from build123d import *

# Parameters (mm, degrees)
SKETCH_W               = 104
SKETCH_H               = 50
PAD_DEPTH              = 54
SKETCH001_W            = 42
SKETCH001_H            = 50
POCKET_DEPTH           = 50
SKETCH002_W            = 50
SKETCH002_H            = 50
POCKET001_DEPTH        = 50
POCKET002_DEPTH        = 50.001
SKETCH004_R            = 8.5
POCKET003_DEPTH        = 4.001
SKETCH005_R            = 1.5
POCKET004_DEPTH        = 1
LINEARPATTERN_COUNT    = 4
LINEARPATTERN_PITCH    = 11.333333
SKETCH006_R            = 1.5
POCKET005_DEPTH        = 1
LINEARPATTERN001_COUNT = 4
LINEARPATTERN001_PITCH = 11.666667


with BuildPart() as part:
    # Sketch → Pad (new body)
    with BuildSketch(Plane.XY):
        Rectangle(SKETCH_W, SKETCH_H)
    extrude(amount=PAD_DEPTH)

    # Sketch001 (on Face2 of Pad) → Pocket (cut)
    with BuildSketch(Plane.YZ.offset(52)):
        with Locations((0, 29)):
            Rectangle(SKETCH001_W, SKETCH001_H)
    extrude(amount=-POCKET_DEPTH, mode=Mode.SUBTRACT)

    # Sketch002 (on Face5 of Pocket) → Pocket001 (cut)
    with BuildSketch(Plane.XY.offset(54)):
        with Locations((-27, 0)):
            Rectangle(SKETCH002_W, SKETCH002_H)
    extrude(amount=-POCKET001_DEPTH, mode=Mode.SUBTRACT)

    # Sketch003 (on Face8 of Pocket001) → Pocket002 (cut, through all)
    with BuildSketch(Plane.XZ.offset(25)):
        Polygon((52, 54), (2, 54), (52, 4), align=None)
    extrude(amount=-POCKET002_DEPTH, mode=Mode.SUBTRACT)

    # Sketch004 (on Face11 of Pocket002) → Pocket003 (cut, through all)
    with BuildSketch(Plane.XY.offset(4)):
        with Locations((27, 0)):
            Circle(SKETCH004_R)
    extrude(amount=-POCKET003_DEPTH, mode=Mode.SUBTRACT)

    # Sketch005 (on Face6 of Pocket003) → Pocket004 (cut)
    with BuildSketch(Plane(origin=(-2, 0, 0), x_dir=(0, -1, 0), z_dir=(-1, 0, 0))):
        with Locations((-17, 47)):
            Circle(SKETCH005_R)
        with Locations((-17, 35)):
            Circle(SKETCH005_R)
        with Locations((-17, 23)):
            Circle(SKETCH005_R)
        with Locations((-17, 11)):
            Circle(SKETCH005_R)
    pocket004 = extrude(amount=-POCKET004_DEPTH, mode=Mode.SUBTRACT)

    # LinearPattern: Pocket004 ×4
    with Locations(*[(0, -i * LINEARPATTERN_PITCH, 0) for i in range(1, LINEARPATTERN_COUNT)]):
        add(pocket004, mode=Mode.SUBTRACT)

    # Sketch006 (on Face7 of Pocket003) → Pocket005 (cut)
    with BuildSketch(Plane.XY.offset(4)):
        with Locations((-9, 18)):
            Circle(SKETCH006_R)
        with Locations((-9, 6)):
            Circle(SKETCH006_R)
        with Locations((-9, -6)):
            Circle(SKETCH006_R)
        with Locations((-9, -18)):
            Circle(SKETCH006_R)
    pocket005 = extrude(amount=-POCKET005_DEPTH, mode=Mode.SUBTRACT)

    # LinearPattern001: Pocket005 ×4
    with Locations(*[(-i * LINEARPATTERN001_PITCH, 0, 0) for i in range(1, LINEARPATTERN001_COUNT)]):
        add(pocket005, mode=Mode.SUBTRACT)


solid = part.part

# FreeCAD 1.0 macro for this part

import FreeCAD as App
import Part
import Sketcher

V = App.Vector
Q = App.Units.Quantity

doc = App.newDocument("Part")
body = doc.addObject("PartDesign::Body", "Body")

# Sketch on XY plane
sketch1 = body.newObject("Sketcher::SketchObject", "Sketch")
sketch1.AttachmentSupport = (doc.getObject("XY_Plane"), [""])
sketch1.MapMode = "FlatFace"
sketch1.addGeometry(Part.LineSegment(V(-52, 25, 0), V(-52, -25, 0)), False)
sketch1.addGeometry(Part.LineSegment(V(-52, -25, 0), V(52, -25, 0)), False)
sketch1.addGeometry(Part.LineSegment(V(52, -25, 0), V(52, 25, 0)), False)
sketch1.addGeometry(Part.LineSegment(V(52, 25, 0), V(-52, 25, 0)), False)
sketch1.addConstraint(Sketcher.Constraint("Coincident", 0, 2, 1, 1))
sketch1.addConstraint(Sketcher.Constraint("Coincident", 1, 2, 2, 1))
sketch1.addConstraint(Sketcher.Constraint("Coincident", 2, 2, 3, 1))
sketch1.addConstraint(Sketcher.Constraint("Coincident", 3, 2, 0, 1))
sketch1.addConstraint(Sketcher.Constraint("Vertical", 0))
sketch1.addConstraint(Sketcher.Constraint("Horizontal", 1))
sketch1.addConstraint(Sketcher.Constraint("Vertical", 2))
sketch1.addConstraint(Sketcher.Constraint("Horizontal", 3))
sketch1.addConstraint(Sketcher.Constraint("Symmetric", 0, 2, 2, 2, -1, 1))
sketch1.addConstraint(Sketcher.Constraint("DistanceX", 1, 1, 1, 2, Q("104 mm")))
sketch1.addConstraint(Sketcher.Constraint("DistanceY", 0, 2, 0, 1, Q("50 mm")))
pad1 = body.newObject("PartDesign::Pad", "Pad")
pad1.Profile = sketch1
pad1.Length = 54

# Sketch on YZ plane
sketch2 = body.newObject("Sketcher::SketchObject", "Sketch001")
sketch2.AttachmentSupport = (doc.getObject("YZ_Plane"), [""])
sketch2.MapMode = "FlatFace"
sketch2.AttachmentOffset = App.Placement(V(0, 0, 52), App.Rotation())
sketch2.addGeometry(Part.LineSegment(V(-21, 54, 0), V(-21, 4, 0)), False)
sketch2.addGeometry(Part.LineSegment(V(-21, 4, 0), V(21, 4, 0)), False)
sketch2.addGeometry(Part.LineSegment(V(21, 4, 0), V(21, 54, 0)), False)
sketch2.addGeometry(Part.LineSegment(V(21, 54, 0), V(-21, 54, 0)), False)
sketch2.addConstraint(Sketcher.Constraint("Coincident", 0, 2, 1, 1))
sketch2.addConstraint(Sketcher.Constraint("Coincident", 1, 2, 2, 1))
sketch2.addConstraint(Sketcher.Constraint("Coincident", 2, 2, 3, 1))
sketch2.addConstraint(Sketcher.Constraint("Coincident", 3, 2, 0, 1))
sketch2.addConstraint(Sketcher.Constraint("Vertical", 0))
sketch2.addConstraint(Sketcher.Constraint("Horizontal", 1))
sketch2.addConstraint(Sketcher.Constraint("Vertical", 2))
sketch2.addConstraint(Sketcher.Constraint("Horizontal", 3))
sketch2.addConstraint(Sketcher.Constraint("DistanceX", 1, 1, 1, 2, Q("42 mm")))
sketch2.addConstraint(Sketcher.Constraint("DistanceY", 0, 2, 0, 1, Q("50 mm")))
sketch2.addConstraint(Sketcher.Constraint("DistanceX", 0, 2, -1, 1, Q("21 mm")))
sketch2.addConstraint(Sketcher.Constraint("DistanceY", -1, 1, 0, 2, Q("4 mm")))
pocket1 = body.newObject("PartDesign::Pocket", "Pocket")
pocket1.Profile = sketch2
pocket1.Length = 50

# Sketch on XY plane
sketch3 = body.newObject("Sketcher::SketchObject", "Sketch002")
sketch3.AttachmentSupport = (doc.getObject("XY_Plane"), [""])
sketch3.MapMode = "FlatFace"
sketch3.AttachmentOffset = App.Placement(V(0, 0, 54), App.Rotation())
sketch3.addGeometry(Part.LineSegment(V(-52, 25, 0), V(-52, -25, 0)), False)
sketch3.addGeometry(Part.LineSegment(V(-52, -25, 0), V(-2, -25, 0)), False)
sketch3.addGeometry(Part.LineSegment(V(-2, -25, 0), V(-2, 25, 0)), False)
sketch3.addGeometry(Part.LineSegment(V(-2, 25, 0), V(-52, 25, 0)), False)
sketch3.addConstraint(Sketcher.Constraint("Coincident", 0, 2, 1, 1))
sketch3.addConstraint(Sketcher.Constraint("Coincident", 1, 2, 2, 1))
sketch3.addConstraint(Sketcher.Constraint("Coincident", 2, 2, 3, 1))
sketch3.addConstraint(Sketcher.Constraint("Coincident", 3, 2, 0, 1))
sketch3.addConstraint(Sketcher.Constraint("Vertical", 0))
sketch3.addConstraint(Sketcher.Constraint("Horizontal", 1))
sketch3.addConstraint(Sketcher.Constraint("Vertical", 2))
sketch3.addConstraint(Sketcher.Constraint("Horizontal", 3))
sketch3.addConstraint(Sketcher.Constraint("Equal", 3, 0))
sketch3.addConstraint(Sketcher.Constraint("DistanceX", 1, 1, 1, 2, Q("50 mm")))
sketch3.addConstraint(Sketcher.Constraint("DistanceX", 0, 2, -1, 1, Q("52 mm")))
sketch3.addConstraint(Sketcher.Constraint("DistanceY", 0, 2, -1, 1, Q("25 mm")))
pocket2 = body.newObject("PartDesign::Pocket", "Pocket001")
pocket2.Profile = sketch3
pocket2.Length = 50

# Sketch on XZ plane
sketch4 = body.newObject("Sketcher::SketchObject", "Sketch003")
sketch4.AttachmentSupport = (doc.getObject("XZ_Plane"), [""])
sketch4.MapMode = "FlatFace"
sketch4.AttachmentOffset = App.Placement(V(0, 0, 25), App.Rotation())
sketch4.addGeometry(Part.LineSegment(V(52, 54, 0), V(2, 54, 0)), False)
sketch4.addGeometry(Part.LineSegment(V(2, 54, 0), V(52, 4, 0)), False)
sketch4.addGeometry(Part.LineSegment(V(52, 4, 0), V(52, 54, 0)), False)
sketch4.addConstraint(Sketcher.Constraint("Coincident", 0, 2, 1, 1))
sketch4.addConstraint(Sketcher.Constraint("Coincident", 1, 2, 2, 1))
sketch4.addConstraint(Sketcher.Constraint("Coincident", 2, 2, 0, 1))
sketch4.addConstraint(Sketcher.Constraint("Horizontal", 0))
sketch4.addConstraint(Sketcher.Constraint("Vertical", 2))
sketch4.addConstraint(Sketcher.Constraint("Equal", 0, 2))
sketch4.addConstraint(Sketcher.Constraint("DistanceX", 0, 2, 0, 1, Q("50 mm")))
sketch4.addConstraint(Sketcher.Constraint("DistanceX", -1, 1, 0, 2, Q("2 mm")))
sketch4.addConstraint(Sketcher.Constraint("DistanceY", -1, 1, 0, 2, Q("54 mm")))
pocket3 = body.newObject("PartDesign::Pocket", "Pocket002")
pocket3.Profile = sketch4
pocket3.Type = "ThroughAll"

# Sketch on XY plane
sketch5 = body.newObject("Sketcher::SketchObject", "Sketch004")
sketch5.AttachmentSupport = (doc.getObject("XY_Plane"), [""])
sketch5.MapMode = "FlatFace"
sketch5.AttachmentOffset = App.Placement(V(0, 0, 4), App.Rotation())
sketch5.addGeometry(Part.Circle(V(27, 0, 0), V(0, 0, 1), 8), False)
sketch5.addConstraint(Sketcher.Constraint("PointOnObject", 0, 3, -1))
sketch5.addConstraint(Sketcher.Constraint("Diameter", 0, Q("17 mm")))
sketch5.addConstraint(Sketcher.Constraint("DistanceX", -1, 1, 0, 3, Q("27 mm")))
pocket4 = body.newObject("PartDesign::Pocket", "Pocket003")
pocket4.Profile = sketch5
pocket4.Type = "ThroughAll"

# Sketch on YZ plane
sketch6 = body.newObject("Sketcher::SketchObject", "Sketch005")
sketch6.AttachmentSupport = (doc.getObject("YZ_Plane"), [""])
sketch6.MapMode = "FlatFace"
sketch6.AttachmentOffset = App.Placement(V(0, 0, -2), App.Rotation())
sketch6.addGeometry(Part.Circle(V(17, 47, 0), V(0, 0, 1), 1.5), False)
sketch6.addGeometry(Part.Circle(V(17, 35, 0), V(0, 0, 1), 1.5), False)
sketch6.addGeometry(Part.Circle(V(17, 23, 0), V(0, 0, 1), 1.5), False)
sketch6.addGeometry(Part.Circle(V(17, 11, 0), V(0, 0, 1), 1.5), False)
sketch6.addConstraint(Sketcher.Constraint("Equal", 0, 1))
sketch6.addConstraint(Sketcher.Constraint("Equal", 1, 2))
sketch6.addConstraint(Sketcher.Constraint("Equal", 2, 3))
sketch6.addConstraint(Sketcher.Constraint("Vertical", 0, 3, 1, 3))
sketch6.addConstraint(Sketcher.Constraint("Vertical", 1, 3, 2, 3))
sketch6.addConstraint(Sketcher.Constraint("Vertical", 2, 3, 3, 3))
sketch6.addConstraint(Sketcher.Constraint("Diameter", 0, Q("3 mm")))
sketch6.addConstraint(Sketcher.Constraint("DistanceX", -1, 1, 0, 3, Q("17 mm")))
sketch6.addConstraint(Sketcher.Constraint("DistanceY", -1, 1, 0, 3, Q("47 mm")))
sketch6.addConstraint(Sketcher.Constraint("DistanceY", -1, 1, 1, 3, Q("35 mm")))
sketch6.addConstraint(Sketcher.Constraint("DistanceY", -1, 1, 2, 3, Q("23 mm")))
sketch6.addConstraint(Sketcher.Constraint("DistanceY", -1, 1, 3, 3, Q("11 mm")))
pocket5 = body.newObject("PartDesign::Pocket", "Pocket004")
pocket5.Profile = sketch6
pocket5.Length = 1
pocket5.Reversed = True
doc.recompute()

linearpattern = body.newObject("PartDesign::LinearPattern", "LinearPattern")
linearpattern.Originals = [pocket5]
linearpattern.Direction = (doc.getObject("Y_Axis"), [""])
linearpattern.Mode = "offset"
linearpattern.Offset = 11.333333
linearpattern.Occurrences = 4
linearpattern.Reversed = True
body.Tip = linearpattern

# Sketch on XY plane
sketch7 = body.newObject("Sketcher::SketchObject", "Sketch006")
sketch7.AttachmentSupport = (doc.getObject("XY_Plane"), [""])
sketch7.MapMode = "FlatFace"
sketch7.AttachmentOffset = App.Placement(V(0, 0, 4), App.Rotation())
sketch7.addGeometry(Part.Circle(V(-9, 18, 0), V(0, 0, 1), 1.5), False)
sketch7.addGeometry(Part.Circle(V(-9, 6, 0), V(0, 0, 1), 1.5), False)
sketch7.addGeometry(Part.Circle(V(-9, -6, 0), V(0, 0, 1), 1.5), False)
sketch7.addGeometry(Part.Circle(V(-9, -18, 0), V(0, 0, 1), 1.5), False)
sketch7.addConstraint(Sketcher.Constraint("Equal", 0, 1))
sketch7.addConstraint(Sketcher.Constraint("Equal", 1, 2))
sketch7.addConstraint(Sketcher.Constraint("Equal", 2, 3))
sketch7.addConstraint(Sketcher.Constraint("Symmetric", 1, 3, 2, 3, -1))
sketch7.addConstraint(Sketcher.Constraint("Symmetric", 0, 3, 3, 3, -1))
sketch7.addConstraint(Sketcher.Constraint("Vertical", 0, 3, 1, 3))
sketch7.addConstraint(Sketcher.Constraint("Diameter", 0, Q("3 mm")))
sketch7.addConstraint(Sketcher.Constraint("DistanceX", 0, 3, -1, 1, Q("9 mm")))
sketch7.addConstraint(Sketcher.Constraint("DistanceY", -1, 1, 0, 3, Q("18 mm")))
sketch7.addConstraint(Sketcher.Constraint("DistanceY", -1, 1, 1, 3, Q("6 mm")))
pocket6 = body.newObject("PartDesign::Pocket", "Pocket005")
pocket6.Profile = sketch7
pocket6.Length = 1
doc.recompute()

linearpattern2 = body.newObject("PartDesign::LinearPattern", "LinearPattern001")
linearpattern2.Originals = [pocket6]
linearpattern2.Direction = (doc.getObject("X_Axis"), [""])
linearpattern2.Mode = "offset"
linearpattern2.Offset = 11.666667
linearpattern2.Occurrences = 4
linearpattern2.Reversed = True
body.Tip = linearpattern2

doc.recompute()
